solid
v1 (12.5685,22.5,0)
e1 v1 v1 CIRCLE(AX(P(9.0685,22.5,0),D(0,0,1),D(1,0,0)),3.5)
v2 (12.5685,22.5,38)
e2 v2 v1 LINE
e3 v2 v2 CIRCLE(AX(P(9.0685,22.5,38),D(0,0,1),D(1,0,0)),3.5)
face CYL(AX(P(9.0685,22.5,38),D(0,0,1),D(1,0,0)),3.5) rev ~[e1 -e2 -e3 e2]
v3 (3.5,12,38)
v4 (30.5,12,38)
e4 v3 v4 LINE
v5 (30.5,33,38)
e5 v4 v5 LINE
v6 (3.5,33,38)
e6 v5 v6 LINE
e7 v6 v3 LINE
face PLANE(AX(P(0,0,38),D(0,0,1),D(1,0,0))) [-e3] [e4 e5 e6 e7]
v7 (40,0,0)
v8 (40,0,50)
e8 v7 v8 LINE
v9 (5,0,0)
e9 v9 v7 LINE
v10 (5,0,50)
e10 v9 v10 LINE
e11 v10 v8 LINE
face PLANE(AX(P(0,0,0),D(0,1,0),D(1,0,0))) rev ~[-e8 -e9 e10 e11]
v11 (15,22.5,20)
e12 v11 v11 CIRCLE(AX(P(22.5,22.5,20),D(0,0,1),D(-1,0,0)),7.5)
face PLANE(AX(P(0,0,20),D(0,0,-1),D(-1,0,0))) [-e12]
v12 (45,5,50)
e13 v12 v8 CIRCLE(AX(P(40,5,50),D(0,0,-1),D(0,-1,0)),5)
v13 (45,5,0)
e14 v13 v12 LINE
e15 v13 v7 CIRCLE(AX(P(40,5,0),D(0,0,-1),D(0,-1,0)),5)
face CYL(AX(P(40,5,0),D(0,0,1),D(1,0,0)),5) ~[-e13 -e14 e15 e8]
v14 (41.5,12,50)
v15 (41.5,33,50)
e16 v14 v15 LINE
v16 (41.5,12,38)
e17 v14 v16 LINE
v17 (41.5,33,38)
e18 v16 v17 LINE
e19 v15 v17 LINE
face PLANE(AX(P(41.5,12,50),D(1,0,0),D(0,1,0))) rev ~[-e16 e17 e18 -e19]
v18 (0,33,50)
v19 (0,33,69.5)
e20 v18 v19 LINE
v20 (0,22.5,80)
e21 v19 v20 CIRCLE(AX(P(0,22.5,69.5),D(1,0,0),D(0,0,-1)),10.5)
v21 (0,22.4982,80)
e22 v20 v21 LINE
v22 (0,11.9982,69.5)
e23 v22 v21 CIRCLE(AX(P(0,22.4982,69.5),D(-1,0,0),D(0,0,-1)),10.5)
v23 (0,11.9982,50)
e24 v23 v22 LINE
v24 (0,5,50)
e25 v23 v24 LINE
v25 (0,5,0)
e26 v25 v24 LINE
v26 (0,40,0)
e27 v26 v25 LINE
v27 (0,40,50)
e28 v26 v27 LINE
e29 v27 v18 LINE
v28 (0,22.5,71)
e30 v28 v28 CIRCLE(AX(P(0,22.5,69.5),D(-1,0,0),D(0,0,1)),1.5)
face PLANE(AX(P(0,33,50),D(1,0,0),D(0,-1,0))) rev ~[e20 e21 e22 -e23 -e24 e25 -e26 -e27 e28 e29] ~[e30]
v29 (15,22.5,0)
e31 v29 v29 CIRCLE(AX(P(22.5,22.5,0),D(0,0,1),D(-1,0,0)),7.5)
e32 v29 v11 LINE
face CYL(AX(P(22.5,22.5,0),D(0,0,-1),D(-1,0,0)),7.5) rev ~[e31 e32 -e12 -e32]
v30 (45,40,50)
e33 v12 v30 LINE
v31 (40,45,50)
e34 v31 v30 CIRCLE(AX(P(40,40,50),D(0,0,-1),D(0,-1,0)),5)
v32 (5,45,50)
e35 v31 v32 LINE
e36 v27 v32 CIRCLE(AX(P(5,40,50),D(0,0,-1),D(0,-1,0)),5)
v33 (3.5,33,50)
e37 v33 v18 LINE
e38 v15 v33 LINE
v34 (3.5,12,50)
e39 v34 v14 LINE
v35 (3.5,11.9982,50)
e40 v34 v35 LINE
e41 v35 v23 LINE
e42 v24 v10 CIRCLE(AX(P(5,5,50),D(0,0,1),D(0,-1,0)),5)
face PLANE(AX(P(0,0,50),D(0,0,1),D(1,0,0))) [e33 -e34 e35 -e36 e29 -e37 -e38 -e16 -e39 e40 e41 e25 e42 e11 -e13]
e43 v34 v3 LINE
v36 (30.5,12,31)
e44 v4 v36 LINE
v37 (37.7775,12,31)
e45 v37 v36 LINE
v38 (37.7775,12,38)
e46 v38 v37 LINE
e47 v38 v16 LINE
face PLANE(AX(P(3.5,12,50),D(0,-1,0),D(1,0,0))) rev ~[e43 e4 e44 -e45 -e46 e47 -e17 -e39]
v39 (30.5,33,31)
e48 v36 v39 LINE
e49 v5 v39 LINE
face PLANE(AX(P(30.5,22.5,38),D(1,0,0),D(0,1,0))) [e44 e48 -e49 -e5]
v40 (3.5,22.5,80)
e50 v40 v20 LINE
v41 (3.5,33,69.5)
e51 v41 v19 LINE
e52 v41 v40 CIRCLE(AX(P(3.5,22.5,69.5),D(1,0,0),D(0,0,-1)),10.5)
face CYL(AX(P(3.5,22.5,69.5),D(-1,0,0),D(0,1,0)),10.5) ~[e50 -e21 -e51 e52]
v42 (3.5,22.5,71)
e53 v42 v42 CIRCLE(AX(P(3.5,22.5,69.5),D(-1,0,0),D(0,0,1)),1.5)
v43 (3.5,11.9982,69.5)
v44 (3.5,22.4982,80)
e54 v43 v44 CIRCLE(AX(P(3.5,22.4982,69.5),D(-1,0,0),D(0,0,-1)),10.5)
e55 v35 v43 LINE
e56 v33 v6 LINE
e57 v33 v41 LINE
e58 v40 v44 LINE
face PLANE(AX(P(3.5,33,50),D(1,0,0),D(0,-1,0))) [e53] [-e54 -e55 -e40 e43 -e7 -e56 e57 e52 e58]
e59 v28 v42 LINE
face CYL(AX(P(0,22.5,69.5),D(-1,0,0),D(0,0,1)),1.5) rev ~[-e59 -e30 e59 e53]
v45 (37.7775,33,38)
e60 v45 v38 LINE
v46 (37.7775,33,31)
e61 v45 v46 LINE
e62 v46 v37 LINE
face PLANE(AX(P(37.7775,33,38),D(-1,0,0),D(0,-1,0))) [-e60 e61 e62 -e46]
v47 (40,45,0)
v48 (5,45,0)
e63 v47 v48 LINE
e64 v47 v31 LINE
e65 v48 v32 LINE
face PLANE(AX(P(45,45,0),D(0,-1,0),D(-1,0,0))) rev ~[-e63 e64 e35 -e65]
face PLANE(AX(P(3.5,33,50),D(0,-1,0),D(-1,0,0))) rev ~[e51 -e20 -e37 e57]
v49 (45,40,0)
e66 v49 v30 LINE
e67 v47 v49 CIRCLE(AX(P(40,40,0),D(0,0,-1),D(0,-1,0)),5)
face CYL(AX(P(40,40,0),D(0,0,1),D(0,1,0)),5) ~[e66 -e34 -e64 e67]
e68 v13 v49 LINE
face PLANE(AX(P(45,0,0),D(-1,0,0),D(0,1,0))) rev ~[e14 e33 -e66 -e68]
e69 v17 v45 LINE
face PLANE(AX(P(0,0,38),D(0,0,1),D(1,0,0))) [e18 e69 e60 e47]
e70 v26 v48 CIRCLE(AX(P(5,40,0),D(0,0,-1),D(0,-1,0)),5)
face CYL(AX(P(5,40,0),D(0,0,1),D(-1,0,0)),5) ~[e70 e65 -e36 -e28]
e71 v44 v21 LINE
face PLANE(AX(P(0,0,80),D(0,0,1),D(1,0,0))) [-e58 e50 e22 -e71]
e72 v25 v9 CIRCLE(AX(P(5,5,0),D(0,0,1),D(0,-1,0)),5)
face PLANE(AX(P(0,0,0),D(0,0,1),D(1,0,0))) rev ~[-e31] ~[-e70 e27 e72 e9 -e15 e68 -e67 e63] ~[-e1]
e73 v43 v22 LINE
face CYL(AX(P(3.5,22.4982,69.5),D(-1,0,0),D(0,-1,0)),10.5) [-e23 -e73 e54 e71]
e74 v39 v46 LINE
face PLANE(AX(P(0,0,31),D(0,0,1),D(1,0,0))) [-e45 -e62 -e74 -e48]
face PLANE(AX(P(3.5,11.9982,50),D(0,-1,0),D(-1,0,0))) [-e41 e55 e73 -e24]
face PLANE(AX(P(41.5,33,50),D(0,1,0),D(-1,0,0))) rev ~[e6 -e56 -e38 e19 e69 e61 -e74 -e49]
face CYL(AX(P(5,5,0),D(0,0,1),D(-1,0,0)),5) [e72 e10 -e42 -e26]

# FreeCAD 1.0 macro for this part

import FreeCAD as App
import Part
import Sketcher

V = App.Vector
Q = App.Units.Quantity


def edges_at(feature, points):
    """Names of the edges that pass closest to the given points."""
    edges = feature.Shape.Edges
    near = lambda p: min(range(len(edges)), key=lambda i: edges[i].distToShape(Part.Vertex(*p))[0])
    return sorted({f"Edge{near(p) + 1}" for p in points})


def add_polygon(sketch, points):
    """Adds a closed chain of lines whose ends are joined by coincident constraints."""
    first, n = sketch.GeometryCount, len(points)
    for a, b in zip(points, points[1:] + points[:1]):
        sketch.addGeometry(Part.LineSegment(App.Vector(*a, 0), App.Vector(*b, 0)), False)
    for i in range(n):
        sketch.addConstraint(Sketcher.Constraint("Coincident", first + i, 2, first + (i + 1) % n, 1))

doc = App.newDocument("Part")
body = doc.addObject("PartDesign::Body", "Body")

# Sketch on XY plane
sketch1 = body.newObject("Sketcher::SketchObject", "Sketch")
sketch1.AttachmentSupport = (doc.getObject("XY_Plane"), [""])
sketch1.MapMode = "FlatFace"
add_polygon(sketch1, [(0, 45), (0, 0), (45, 0), (45, 45)])  # lines 0-3
sketch1.addConstraint(Sketcher.Constraint("Vertical", 0))
sketch1.addConstraint(Sketcher.Constraint("Horizontal", 1))
sketch1.addConstraint(Sketcher.Constraint("Vertical", 2))
sketch1.addConstraint(Sketcher.Constraint("Horizontal", 3))
sketch1.addConstraint(Sketcher.Constraint("Coincident", 0, 2, -1, 1))
sketch1.addConstraint(Sketcher.Constraint("Equal", 3, 0))
sketch1.addConstraint(Sketcher.Constraint("DistanceX", 1, 1, 1, 2, Q("45 mm")))
pad1 = body.newObject("PartDesign::Pad", "Pad")
pad1.Profile = sketch1
pad1.Length = 50
doc.recompute()

fillet = body.newObject("PartDesign::Fillet", "Fillet")
fillet.Base = (pad1, edges_at(pad1, [
    (45, 45, 25),
    (0, 45, 25),
    (45, 0, 25),
    (0, 0, 25),
]))
fillet.Radius = 5

# Sketch on XY plane
sketch2 = body.newObject("Sketcher::SketchObject", "Sketch001")
sketch2.AttachmentSupport = (doc.getObject("XY_Plane"), [""])
sketch2.MapMode = "FlatFace"
sketch2.addGeometry(Part.Circle(V(22, 22, 0), V(0, 0, 1), 8), False)
sketch2.addConstraint(Sketcher.Constraint("Diameter", 0, Q("15 mm")))
sketch2.addConstraint(Sketcher.Constraint("DistanceX", -1, 1, 0, 3, Q("22.5 mm")))
sketch2.addConstraint(Sketcher.Constraint("DistanceY", -1, 1, 0, 3, Q("22.5 mm")))
pocket1 = body.newObject("PartDesign::Pocket", "Pocket")
pocket1.Profile = sketch2
pocket1.Length = 20
pocket1.Reversed = True

# Sketch on XY plane
sketch3 = body.newObject("Sketcher::SketchObject", "Sketch002")
sketch3.AttachmentSupport = (doc.getObject("XY_Plane"), [""])
sketch3.MapMode = "FlatFace"
sketch3.AttachmentOffset = App.Placement(V(0, 0, 50), App.Rotation())
add_polygon(sketch3, [(4, 33), (4, 12), (42, 12), (42, 33)])  # lines 0-3
sketch3.addConstraint(Sketcher.Constraint("Vertical", 0))
sketch3.addConstraint(Sketcher.Constraint("Horizontal", 1))
sketch3.addConstraint(Sketcher.Constraint("Vertical", 2))
sketch3.addConstraint(Sketcher.Constraint("Horizontal", 3))
sketch3.addConstraint(Sketcher.Constraint("DistanceX", 1, 1, 1, 2, Q("38 mm")))
sketch3.addConstraint(Sketcher.Constraint("DistanceY", 0, 2, 0, 1, Q("21 mm")))
sketch3.addConstraint(Sketcher.Constraint("DistanceY", -1, 1, 0, 2, Q("12 mm")))
sketch3.addConstraint(Sketcher.Constraint("DistanceX", -1, 1, 0, 2, Q("3.5 mm")))
pocket2 = body.newObject("PartDesign::Pocket", "Pocket001")
pocket2.Profile = sketch3
pocket2.Length = 12

# Sketch on XY plane
sketch4 = body.newObject("Sketcher::SketchObject", "Sketch003")
sketch4.AttachmentSupport = (doc.getObject("XY_Plane"), [""])
sketch4.MapMode = "FlatFace"
sketch4.AttachmentOffset = App.Placement(V(0, 0, 38), App.Rotation())
add_polygon(sketch4, [(38, 33), (30, 33), (30, 12), (38, 12)])  # lines 0-3
sketch4.addConstraint(Sketcher.Constraint("Horizontal", 0))
sketch4.addConstraint(Sketcher.Constraint("Vertical", 1))
sketch4.addConstraint(Sketcher.Constraint("Horizontal", 2))
sketch4.addConstraint(Sketcher.Constraint("Vertical", 3))
sketch4.addConstraint(Sketcher.Constraint("DistanceY", 1, 2, 1, 1, Q("21 mm")))
sketch4.addConstraint(Sketcher.Constraint("DistanceY", -1, 1, 0, 2, Q("33 mm")))
sketch4.addConstraint(Sketcher.Constraint("DistanceX", -1, 1, 0, 2, Q("30.5 mm")))
sketch4.addConstraint(Sketcher.Constraint("DistanceX", 0, 2, 0, 1, Q("7.2775 mm")))
pocket3 = body.newObject("PartDesign::Pocket", "Pocket002")
pocket3.Profile = sketch4
pocket3.Length = 7

# Sketch on XY plane
sketch5 = body.newObject("Sketcher::SketchObject", "Sketch004")
sketch5.AttachmentSupport = (doc.getObject("XY_Plane"), [""])
sketch5.MapMode = "FlatFace"
sketch5.AttachmentOffset = App.Placement(V(0, 0, 38), App.Rotation())
sketch5.addGeometry(Part.Circle(V(9.1, 22.5, 0), V(0, 0, 1), 3.5), False)
sketch5.addConstraint(Sketcher.Constraint("Diameter", 0, Q("7 mm")))
sketch5.addConstraint(Sketcher.Constraint("DistanceY", -1, 1, 0, 3, Q("22.5 mm")))
sketch5.addConstraint(Sketcher.Constraint("DistanceX", -1, 1, 0, 3, Q("9.0685 mm")))
pocket4 = body.newObject("PartDesign::Pocket", "Pocket003")
pocket4.Profile = sketch5
pocket4.Length = 40

# Sketch on XY plane
sketch6 = body.newObject("Sketcher::SketchObject", "Sketch005")
sketch6.AttachmentSupport = (doc.getObject("XY_Plane"), [""])
sketch6.MapMode = "FlatFace"
sketch6.AttachmentOffset = App.Placement(V(0, 0, 50), App.Rotation())
add_polygon(sketch6, [(3.5, 12), (3.5, 33), (0, 33), (0, 12)])  # lines 0-3
sketch6.addConstraint(Sketcher.Constraint("Vertical", 0))
sketch6.addConstraint(Sketcher.Constraint("Horizontal", 1))
sketch6.addConstraint(Sketcher.Constraint("Vertical", 2))
sketch6.addConstraint(Sketcher.Constraint("Horizontal", 3))
sketch6.addConstraint(Sketcher.Constraint("PointOnObject", 1, 2, -2))
sketch6.addConstraint(Sketcher.Constraint("DistanceX", 1, 2, 1, 1, Q("3.5 mm")))
sketch6.addConstraint(Sketcher.Constraint("DistanceY", -1, 1, 0, 2, Q("33 mm")))
sketch6.addConstraint(Sketcher.Constraint("DistanceY", 0, 1, 0, 2, Q("21.0018 mm")))
pad2 = body.newObject("PartDesign::Pad", "Pad001")
pad2.Profile = sketch6
pad2.Length = 30
doc.recompute()

fillet2 = body.newObject("PartDesign::Fillet", "Fillet001")
fillet2.Base = (pad2, edges_at(pad2, [(1.75, 33, 80), (1.75, 11.998, 80)]))
fillet2.Radius = 10.5

# Sketch on YZ plane
sketch7 = body.newObject("Sketcher::SketchObject", "Sketch006")
sketch7.AttachmentSupport = (doc.getObject("YZ_Plane"), [""])
sketch7.MapMode = "FlatFace"
sketch7.addGeometry(Part.Circle(V(22.5, 69.5, 0), V(0, 0, 1), 1.5), False)
sketch7.addConstraint(Sketcher.Constraint("Diameter", 0, Q("3 mm")))
sketch7.addConstraint(Sketcher.Constraint("DistanceX", -1, 1, 0, 3, Q("22.5 mm")))
sketch7.addConstraint(Sketcher.Constraint("DistanceY", -1, 1, 0, 3, Q("69.5 mm")))
pocket5 = body.newObject("PartDesign::Pocket", "Pocket004")
pocket5.Profile = sketch7
pocket5.Length = 30
pocket5.Reversed = True

doc.recompute()
